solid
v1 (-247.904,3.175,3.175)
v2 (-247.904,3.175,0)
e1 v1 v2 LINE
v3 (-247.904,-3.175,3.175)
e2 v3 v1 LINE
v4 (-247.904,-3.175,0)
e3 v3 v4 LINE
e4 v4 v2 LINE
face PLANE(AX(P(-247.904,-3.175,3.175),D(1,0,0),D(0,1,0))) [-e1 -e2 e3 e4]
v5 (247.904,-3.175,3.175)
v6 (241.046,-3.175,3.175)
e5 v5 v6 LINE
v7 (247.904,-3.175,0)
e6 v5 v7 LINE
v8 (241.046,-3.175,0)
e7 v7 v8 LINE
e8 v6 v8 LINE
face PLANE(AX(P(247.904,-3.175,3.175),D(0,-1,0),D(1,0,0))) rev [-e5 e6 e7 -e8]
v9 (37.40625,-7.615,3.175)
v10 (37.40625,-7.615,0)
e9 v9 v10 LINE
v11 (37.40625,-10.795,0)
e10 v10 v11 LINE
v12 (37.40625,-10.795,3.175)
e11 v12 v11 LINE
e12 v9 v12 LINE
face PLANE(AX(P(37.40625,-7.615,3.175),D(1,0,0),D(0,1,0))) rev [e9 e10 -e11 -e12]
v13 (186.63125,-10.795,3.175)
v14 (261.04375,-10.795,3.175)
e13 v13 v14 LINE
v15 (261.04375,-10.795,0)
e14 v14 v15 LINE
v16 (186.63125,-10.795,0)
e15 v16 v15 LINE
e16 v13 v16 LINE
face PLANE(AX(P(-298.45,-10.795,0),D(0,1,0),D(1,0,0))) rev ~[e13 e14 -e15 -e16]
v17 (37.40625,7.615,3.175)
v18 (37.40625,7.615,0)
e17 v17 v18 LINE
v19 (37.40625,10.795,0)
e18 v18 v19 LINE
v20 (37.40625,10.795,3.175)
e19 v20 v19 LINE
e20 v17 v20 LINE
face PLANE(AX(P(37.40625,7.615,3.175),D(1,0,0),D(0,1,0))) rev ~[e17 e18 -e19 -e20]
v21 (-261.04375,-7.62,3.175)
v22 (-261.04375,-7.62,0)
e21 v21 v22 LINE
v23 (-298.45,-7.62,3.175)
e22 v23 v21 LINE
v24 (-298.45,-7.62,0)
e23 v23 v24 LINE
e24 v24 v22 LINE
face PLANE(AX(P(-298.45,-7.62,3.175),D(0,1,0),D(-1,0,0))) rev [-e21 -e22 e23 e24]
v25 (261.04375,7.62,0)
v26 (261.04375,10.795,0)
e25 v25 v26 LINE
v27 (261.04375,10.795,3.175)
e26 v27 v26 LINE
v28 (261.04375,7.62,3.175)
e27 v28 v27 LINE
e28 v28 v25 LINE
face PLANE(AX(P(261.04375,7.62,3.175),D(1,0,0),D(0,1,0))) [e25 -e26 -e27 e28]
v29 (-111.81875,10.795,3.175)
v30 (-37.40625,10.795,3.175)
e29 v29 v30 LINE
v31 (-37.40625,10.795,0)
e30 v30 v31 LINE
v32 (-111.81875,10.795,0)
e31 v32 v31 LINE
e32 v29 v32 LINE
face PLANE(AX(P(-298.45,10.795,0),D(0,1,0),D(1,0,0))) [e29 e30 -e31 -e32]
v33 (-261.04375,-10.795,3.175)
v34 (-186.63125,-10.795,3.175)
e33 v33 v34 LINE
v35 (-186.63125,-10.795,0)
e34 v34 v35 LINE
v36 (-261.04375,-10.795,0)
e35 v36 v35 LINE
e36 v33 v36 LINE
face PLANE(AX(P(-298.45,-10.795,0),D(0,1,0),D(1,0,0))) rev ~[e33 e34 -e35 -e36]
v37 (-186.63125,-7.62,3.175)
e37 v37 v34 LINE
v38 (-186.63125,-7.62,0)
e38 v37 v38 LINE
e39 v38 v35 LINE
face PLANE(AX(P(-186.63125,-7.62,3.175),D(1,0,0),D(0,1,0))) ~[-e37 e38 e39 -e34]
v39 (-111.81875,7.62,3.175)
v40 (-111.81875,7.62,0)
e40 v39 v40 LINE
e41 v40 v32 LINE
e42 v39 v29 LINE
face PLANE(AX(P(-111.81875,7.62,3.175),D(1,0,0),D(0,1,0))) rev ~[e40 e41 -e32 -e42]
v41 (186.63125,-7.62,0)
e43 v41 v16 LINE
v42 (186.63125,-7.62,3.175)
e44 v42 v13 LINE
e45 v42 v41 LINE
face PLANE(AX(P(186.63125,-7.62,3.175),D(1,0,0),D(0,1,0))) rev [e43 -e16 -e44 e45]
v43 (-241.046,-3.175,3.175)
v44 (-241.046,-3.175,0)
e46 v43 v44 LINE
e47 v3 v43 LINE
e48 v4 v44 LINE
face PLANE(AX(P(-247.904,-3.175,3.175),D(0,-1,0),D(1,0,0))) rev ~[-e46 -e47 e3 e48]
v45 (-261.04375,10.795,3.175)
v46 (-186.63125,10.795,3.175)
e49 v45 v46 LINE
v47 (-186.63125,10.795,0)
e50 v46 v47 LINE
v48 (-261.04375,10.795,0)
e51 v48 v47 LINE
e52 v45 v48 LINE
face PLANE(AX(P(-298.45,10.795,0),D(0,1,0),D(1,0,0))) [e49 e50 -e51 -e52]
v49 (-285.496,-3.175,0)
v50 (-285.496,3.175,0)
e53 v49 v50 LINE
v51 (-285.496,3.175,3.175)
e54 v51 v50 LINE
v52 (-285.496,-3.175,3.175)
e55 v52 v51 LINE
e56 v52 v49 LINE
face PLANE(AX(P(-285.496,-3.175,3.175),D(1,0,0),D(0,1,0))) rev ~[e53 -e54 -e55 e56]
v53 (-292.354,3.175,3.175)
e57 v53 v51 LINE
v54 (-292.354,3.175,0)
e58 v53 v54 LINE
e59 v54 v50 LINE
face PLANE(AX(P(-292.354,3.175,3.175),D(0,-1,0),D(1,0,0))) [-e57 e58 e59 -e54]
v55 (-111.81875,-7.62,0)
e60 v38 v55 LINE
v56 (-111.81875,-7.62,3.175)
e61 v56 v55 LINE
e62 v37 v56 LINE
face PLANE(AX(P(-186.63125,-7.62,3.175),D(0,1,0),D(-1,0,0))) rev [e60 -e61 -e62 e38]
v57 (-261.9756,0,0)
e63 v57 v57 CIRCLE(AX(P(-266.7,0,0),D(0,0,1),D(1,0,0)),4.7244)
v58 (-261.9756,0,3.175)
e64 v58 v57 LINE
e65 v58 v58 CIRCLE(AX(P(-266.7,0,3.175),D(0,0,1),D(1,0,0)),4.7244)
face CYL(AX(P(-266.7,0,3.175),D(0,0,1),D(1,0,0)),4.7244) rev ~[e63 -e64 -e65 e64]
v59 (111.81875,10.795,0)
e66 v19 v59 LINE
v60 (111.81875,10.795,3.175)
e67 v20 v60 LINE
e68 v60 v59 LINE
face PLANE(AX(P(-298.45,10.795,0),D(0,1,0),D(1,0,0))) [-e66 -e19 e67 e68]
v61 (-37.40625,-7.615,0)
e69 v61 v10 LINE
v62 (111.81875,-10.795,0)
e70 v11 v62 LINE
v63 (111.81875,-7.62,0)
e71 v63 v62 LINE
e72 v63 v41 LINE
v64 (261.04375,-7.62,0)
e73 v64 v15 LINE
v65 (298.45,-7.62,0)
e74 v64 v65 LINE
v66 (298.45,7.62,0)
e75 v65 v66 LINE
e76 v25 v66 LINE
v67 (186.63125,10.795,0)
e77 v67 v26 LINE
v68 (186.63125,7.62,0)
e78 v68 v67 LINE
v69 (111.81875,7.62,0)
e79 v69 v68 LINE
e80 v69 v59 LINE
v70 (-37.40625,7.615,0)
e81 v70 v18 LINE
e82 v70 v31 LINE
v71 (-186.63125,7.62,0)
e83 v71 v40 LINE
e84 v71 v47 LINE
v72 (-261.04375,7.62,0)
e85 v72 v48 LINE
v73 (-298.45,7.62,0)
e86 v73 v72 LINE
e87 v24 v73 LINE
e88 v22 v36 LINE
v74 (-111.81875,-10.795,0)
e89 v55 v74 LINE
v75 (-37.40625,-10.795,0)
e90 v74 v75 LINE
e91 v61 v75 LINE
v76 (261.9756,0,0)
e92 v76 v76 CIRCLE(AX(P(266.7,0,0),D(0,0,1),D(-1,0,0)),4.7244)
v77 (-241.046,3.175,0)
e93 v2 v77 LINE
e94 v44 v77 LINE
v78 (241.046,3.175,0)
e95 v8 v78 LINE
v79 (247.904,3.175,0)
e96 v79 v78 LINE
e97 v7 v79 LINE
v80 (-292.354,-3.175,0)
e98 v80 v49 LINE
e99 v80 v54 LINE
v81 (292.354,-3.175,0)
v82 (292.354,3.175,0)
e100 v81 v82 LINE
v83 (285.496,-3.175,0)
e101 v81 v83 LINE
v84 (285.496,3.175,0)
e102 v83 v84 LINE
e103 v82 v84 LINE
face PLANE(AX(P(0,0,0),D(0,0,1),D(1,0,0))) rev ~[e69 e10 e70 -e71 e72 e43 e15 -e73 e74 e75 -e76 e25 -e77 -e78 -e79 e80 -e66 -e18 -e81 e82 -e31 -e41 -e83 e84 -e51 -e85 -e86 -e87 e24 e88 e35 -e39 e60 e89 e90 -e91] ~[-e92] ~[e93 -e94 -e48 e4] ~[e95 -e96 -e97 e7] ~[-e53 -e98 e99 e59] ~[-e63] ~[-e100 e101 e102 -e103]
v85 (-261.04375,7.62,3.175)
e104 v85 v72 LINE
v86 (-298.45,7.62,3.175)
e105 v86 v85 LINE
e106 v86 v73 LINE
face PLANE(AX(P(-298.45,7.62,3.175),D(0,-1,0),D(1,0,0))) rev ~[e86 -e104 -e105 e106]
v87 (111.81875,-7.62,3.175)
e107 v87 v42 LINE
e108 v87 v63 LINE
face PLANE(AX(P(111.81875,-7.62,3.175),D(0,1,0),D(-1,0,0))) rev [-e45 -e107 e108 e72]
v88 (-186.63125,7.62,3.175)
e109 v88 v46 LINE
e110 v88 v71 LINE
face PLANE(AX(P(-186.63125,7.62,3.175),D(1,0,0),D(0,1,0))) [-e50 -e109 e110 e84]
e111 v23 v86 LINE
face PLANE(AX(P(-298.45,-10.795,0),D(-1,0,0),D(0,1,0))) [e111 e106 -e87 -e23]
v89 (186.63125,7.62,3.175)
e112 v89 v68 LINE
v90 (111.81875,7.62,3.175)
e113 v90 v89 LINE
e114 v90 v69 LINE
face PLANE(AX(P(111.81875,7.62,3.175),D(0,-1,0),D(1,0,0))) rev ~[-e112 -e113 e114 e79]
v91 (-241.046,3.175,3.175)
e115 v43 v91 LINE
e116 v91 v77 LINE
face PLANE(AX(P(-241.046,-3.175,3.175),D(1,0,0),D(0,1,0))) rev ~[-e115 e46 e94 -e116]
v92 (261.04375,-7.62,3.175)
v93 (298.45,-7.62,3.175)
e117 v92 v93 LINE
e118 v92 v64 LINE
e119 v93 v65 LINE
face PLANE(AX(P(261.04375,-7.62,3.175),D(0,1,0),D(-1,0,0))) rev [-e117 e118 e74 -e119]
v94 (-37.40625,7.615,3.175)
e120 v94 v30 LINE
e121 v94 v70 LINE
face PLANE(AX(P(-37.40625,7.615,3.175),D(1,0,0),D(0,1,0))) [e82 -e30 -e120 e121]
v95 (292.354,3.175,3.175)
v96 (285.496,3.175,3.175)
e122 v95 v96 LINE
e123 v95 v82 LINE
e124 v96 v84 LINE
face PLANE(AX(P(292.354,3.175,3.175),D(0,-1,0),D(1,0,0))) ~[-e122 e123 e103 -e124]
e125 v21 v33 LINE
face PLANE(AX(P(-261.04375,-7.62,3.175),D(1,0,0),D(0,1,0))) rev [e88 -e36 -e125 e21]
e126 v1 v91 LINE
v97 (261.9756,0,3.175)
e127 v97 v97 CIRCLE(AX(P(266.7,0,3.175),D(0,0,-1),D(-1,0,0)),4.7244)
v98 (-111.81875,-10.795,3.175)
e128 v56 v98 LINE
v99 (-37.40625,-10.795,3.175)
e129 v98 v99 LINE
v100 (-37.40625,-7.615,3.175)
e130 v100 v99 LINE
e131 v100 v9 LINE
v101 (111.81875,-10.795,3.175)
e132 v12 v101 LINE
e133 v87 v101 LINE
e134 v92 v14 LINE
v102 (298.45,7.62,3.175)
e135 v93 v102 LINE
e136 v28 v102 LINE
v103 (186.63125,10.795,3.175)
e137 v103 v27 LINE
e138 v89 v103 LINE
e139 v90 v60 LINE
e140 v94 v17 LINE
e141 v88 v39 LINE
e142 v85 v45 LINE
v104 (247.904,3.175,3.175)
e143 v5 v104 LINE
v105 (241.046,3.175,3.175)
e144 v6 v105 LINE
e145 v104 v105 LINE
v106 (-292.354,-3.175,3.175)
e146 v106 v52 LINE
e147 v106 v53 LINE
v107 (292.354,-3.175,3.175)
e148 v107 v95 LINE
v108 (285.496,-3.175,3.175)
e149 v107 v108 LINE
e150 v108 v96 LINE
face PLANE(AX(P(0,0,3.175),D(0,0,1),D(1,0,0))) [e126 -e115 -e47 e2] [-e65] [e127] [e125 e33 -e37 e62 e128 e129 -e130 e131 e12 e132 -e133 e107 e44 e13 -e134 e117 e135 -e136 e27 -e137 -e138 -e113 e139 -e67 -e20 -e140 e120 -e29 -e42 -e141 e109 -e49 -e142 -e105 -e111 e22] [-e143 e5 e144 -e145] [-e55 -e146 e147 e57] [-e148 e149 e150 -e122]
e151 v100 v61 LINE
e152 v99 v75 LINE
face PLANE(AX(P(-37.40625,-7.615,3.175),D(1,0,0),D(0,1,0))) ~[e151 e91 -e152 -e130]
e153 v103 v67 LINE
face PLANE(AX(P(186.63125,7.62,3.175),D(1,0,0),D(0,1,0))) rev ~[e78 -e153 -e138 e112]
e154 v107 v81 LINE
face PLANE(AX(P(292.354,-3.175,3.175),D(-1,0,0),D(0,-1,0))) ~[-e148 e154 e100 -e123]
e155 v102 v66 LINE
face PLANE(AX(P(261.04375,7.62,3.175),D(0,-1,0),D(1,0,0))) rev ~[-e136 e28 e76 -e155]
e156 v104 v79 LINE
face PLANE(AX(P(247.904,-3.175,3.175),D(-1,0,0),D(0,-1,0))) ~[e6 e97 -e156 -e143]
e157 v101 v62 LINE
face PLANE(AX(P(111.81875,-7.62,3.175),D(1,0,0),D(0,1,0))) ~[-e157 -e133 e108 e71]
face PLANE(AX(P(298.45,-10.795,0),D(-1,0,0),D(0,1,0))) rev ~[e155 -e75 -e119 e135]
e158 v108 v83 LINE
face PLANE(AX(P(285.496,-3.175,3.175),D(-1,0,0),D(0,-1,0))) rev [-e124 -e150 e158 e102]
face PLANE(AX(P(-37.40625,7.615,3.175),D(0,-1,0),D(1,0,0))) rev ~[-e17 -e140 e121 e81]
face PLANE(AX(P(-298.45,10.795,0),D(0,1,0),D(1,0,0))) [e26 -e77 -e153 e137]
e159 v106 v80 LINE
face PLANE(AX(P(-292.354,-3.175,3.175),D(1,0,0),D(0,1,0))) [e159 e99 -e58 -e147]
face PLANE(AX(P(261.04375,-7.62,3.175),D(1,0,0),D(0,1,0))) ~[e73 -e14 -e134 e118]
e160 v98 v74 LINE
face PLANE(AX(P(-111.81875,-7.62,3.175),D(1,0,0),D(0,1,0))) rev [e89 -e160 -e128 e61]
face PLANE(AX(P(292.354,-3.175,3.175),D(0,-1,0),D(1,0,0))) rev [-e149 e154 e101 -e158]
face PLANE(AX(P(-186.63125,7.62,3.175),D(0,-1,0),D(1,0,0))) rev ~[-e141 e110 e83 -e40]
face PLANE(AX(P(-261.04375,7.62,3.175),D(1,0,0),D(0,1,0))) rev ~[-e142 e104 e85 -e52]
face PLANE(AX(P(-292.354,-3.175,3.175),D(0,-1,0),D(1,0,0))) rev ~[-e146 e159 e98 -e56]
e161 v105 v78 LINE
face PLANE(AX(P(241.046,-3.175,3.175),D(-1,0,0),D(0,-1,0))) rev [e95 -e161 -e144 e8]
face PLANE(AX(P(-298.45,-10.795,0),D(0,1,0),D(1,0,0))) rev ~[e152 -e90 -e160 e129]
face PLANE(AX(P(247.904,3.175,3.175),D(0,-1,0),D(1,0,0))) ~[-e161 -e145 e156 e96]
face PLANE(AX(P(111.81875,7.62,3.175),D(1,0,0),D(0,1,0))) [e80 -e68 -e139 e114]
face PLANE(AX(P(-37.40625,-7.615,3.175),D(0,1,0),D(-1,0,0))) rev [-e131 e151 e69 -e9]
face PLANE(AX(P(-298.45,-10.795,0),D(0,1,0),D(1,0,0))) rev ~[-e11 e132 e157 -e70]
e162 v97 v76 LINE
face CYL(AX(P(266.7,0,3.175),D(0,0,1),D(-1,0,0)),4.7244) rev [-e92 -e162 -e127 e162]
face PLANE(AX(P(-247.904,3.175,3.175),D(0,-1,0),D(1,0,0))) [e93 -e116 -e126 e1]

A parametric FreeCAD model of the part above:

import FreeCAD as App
import Part
import Sketcher

V = App.Vector
Q = App.Units.Quantity

doc = App.newDocument("Part")
body = doc.addObject("PartDesign::Body", "Body")

sketch1 = doc.addObject("Sketcher::SketchObject", "Sketch")
body.addObject(sketch1)
sketch1.AttachmentSupport = (doc.XY_Plane, [""])
sketch1.MapMode = "FlatFace"
sketch1.addGeometry([
    Part.LineSegment(V(-298.45, 10.795, 0), V(-298.45, -10.795, 0)),
    Part.LineSegment(V(-298.45, -10.795, 0), V(298.45, -10.795, 0)),
    Part.LineSegment(V(298.45, -10.795, 0), V(298.45, 10.795, 0)),
    Part.LineSegment(V(298.45, 10.795, 0), V(-298.45, 10.795, 0)),
], False)
sketch1.addConstraint([
    Sketcher.Constraint("Coincident", 0, 2, 1, 1),
    Sketcher.Constraint("Coincident", 1, 2, 2, 1),
    Sketcher.Constraint("Coincident", 2, 2, 3, 1),
    Sketcher.Constraint("Coincident", 3, 2, 0, 1),
    Sketcher.Constraint("Vertical", 0),
    Sketcher.Constraint("Horizontal", 1),
    Sketcher.Constraint("Vertical", 2),
    Sketcher.Constraint("Horizontal", 3),
    Sketcher.Constraint("Symmetric", 0, 2, 2, 2, -1, 1),
    Sketcher.Constraint("DistanceX", 1, 1, 1, 2, Q("23.5 in")),
    Sketcher.Constraint("DistanceY", 0, 2, 0, 1, Q("0.85 in")),
])
pad1 = doc.addObject("PartDesign::Pad", "Pad")
body.addObject(pad1)
pad1.Profile = sketch1
pad1.Length = Q("0.125 in")

sketch2 = doc.addObject("Sketcher::SketchObject", "Sketch001")
body.addObject(sketch2)
sketch2.AttachmentSupport = (doc.XY_Plane, [""])
sketch2.MapMode = "FlatFace"
sketch2.AttachmentOffset = App.Placement(V(0, 0, 0.125 * 25.4), App.Rotation())
sketch2.addGeometry([
    Part.LineSegment(V(-37.40625, 10.795, 0), V(-37.40625, 7.615, 0)),
    Part.LineSegment(V(-37.40625, 7.615, 0), V(37.40625, 7.615, 0)),
    Part.LineSegment(V(37.40625, 7.615, 0), V(37.40625, 10.795, 0)),
    Part.LineSegment(V(37.40625, 10.795, 0), V(-37.40625, 10.795, 0)),
    Part.LineSegment(V(-186.63125, 10.795, 0), V(-186.63125, 7.62, 0)),
    Part.LineSegment(V(-186.63125, 7.62, 0), V(-111.81875, 7.62, 0)),
    Part.LineSegment(V(-111.81875, 7.62, 0), V(-111.81875, 10.795, 0)),
    Part.LineSegment(V(-111.81875, 10.795, 0), V(-186.63125, 10.795, 0)),
    Part.LineSegment(V(-298.45, 10.795, 0), V(-298.45, 7.62, 0)),
    Part.LineSegment(V(-298.45, 7.62, 0), V(-261.04375, 7.62, 0)),
    Part.LineSegment(V(-261.04375, 7.62, 0), V(-261.04375, 10.795, 0)),
    Part.LineSegment(V(-261.04375, 10.795, 0), V(-298.45, 10.795, 0)),
    Part.LineSegment(V(261.04375, 10.795, 0), V(261.04375, 7.62, 0)),
    Part.LineSegment(V(261.04375, 7.62, 0), V(298.45, 7.62, 0)),
    Part.LineSegment(V(298.45, 7.62, 0), V(298.45, 10.795, 0)),
    Part.LineSegment(V(298.45, 10.795, 0), V(261.04375, 10.795, 0)),
    Part.LineSegment(V(111.81875, 10.795, 0), V(111.81875, 7.62, 0)),
    Part.LineSegment(V(111.81875, 7.62, 0), V(186.63125, 7.62, 0)),
    Part.LineSegment(V(186.63125, 7.62, 0), V(186.63125, 10.795, 0)),
    Part.LineSegment(V(186.63125, 10.795, 0), V(111.81875, 10.795, 0)),
], False)
sketch2.addConstraint([
    Sketcher.Constraint("Coincident", 0, 2, 1, 1),
    Sketcher.Constraint("Coincident", 1, 2, 2, 1),
    Sketcher.Constraint("Coincident", 2, 2, 3, 1),
    Sketcher.Constraint("Coincident", 3, 2, 0, 1),
    Sketcher.Constraint("Coincident", 4, 2, 5, 1),
    Sketcher.Constraint("Coincident", 5, 2, 6, 1),
    Sketcher.Constraint("Coincident", 6, 2, 7, 1),
    Sketcher.Constraint("Coincident", 7, 2, 4, 1),
    Sketcher.Constraint("Coincident", 8, 2, 9, 1),
    Sketcher.Constraint("Coincident", 9, 2, 10, 1),
    Sketcher.Constraint("Coincident", 10, 2, 11, 1),
    Sketcher.Constraint("Coincident", 11, 2, 8, 1),
    Sketcher.Constraint("Coincident", 12, 2, 13, 1),
    Sketcher.Constraint("Coincident", 13, 2, 14, 1),
    Sketcher.Constraint("Coincident", 14, 2, 15, 1),
    Sketcher.Constraint("Coincident", 15, 2, 12, 1),
    Sketcher.Constraint("Coincident", 16, 2, 17, 1),
    Sketcher.Constraint("Coincident", 17, 2, 18, 1),
    Sketcher.Constraint("Coincident", 18, 2, 19, 1),
    Sketcher.Constraint("Coincident", 19, 2, 16, 1),
    Sketcher.Constraint("Vertical", 0),
    Sketcher.Constraint("Horizontal", 1),
    Sketcher.Constraint("Vertical", 2),
    Sketcher.Constraint("Horizontal", 3),
    Sketcher.Constraint("Vertical", 4),
    Sketcher.Constraint("Horizontal", 5),
    Sketcher.Constraint("Vertical", 6),
    Sketcher.Constraint("Horizontal", 7),
    Sketcher.Constraint("Vertical", 8),
    Sketcher.Constraint("Horizontal", 9),
    Sketcher.Constraint("Vertical", 10),
    Sketcher.Constraint("Horizontal", 11),
    Sketcher.Constraint("Vertical", 12),
    Sketcher.Constraint("Horizontal", 13),
    Sketcher.Constraint("Vertical", 14),
    Sketcher.Constraint("Horizontal", 15),
    Sketcher.Constraint("Vertical", 16),
    Sketcher.Constraint("Horizontal", 17),
    Sketcher.Constraint("Vertical", 18),
    Sketcher.Constraint("Horizontal", 19),
    Sketcher.Constraint("Symmetric", 9, 2, 12, 2, -2),
    Sketcher.Constraint("Symmetric", 11, 2, 14, 2, -2),
    Sketcher.Constraint("Symmetric", 5, 2, 16, 2, -2),
    Sketcher.Constraint("Symmetric", 7, 2, 18, 2, -2),
    Sketcher.Constraint("Horizontal", 3, 2, 6, 2),
    Sketcher.Constraint("Horizontal", 5, 2, 8, 2),
    Sketcher.Constraint("Horizontal", 7, 2, 10, 2),
    Sketcher.Constraint("Equal", 3, 5),
    Sketcher.Constraint("DistanceY", -1, 1, 4, 2, Q("0.3 in")),
    Sketcher.Constraint("DistanceY", 4, 2, 4, 1, Q("0.125 in")),
    Sketcher.Constraint("DistanceX", 8, 2, -1, 1, Q("11.75 in")),
    Sketcher.Constraint("DistanceX", 0, 2, 12, 2, Q("11.75 in")),
    Sketcher.Constraint("DistanceX", 4, 2, 0, 2, Q("5.875 in")),
    Sketcher.Constraint("DistanceX", 9, 2, 5, 2, Q("5.875 in")),
    Sketcher.Constraint("DistanceX", 1, 1, 1, 2, 74.8125),
    Sketcher.Constraint("DistanceY", 0, 2, 0, 1, 3.18),
])
pocket1 = doc.addObject("PartDesign::Pocket", "Pocket")
body.addObject(pocket1)
pocket1.Profile = sketch2
pocket1.Type = "ThroughAll"
doc.recompute()

mirrored = doc.addObject("PartDesign::Mirrored", "Mirrored")
body.addObject(mirrored)
mirrored.Originals = [pocket1]
mirrored.MirrorPlane = (doc.XZ_Plane, [""])
body.Tip = mirrored

sketch3 = doc.addObject("Sketcher::SketchObject", "Sketch002")
body.addObject(sketch3)
sketch3.AttachmentSupport = (doc.XY_Plane, [""])
sketch3.MapMode = "FlatFace"
sketch3.AttachmentOffset = App.Placement(V(0, 0, 0.125 * 25.4), App.Rotation())
sketch3.addGeometry([
    Part.Circle(V(-266.7, 0, 0), V(0, 0, 1), 4.7244),
    Part.LineSegment(V(-247.904, 3.175, 0), V(-247.904, -3.175, 0)),
    Part.LineSegment(V(-247.904, -3.175, 0), V(-241.046, -3.175, 0)),
    Part.LineSegment(V(-241.046, -3.175, 0), V(-241.046, 3.175, 0)),
    Part.LineSegment(V(-241.046, 3.175, 0), V(-247.904, 3.175, 0)),
    Part.LineSegment(V(-292.354, 3.175, 0), V(-292.354, -3.175, 0)),
    Part.LineSegment(V(-292.354, -3.175, 0), V(-285.496, -3.175, 0)),
    Part.LineSegment(V(-285.496, -3.175, 0), V(-285.496, 3.175, 0)),
    Part.LineSegment(V(-285.496, 3.175, 0), V(-292.354, 3.175, 0)),
], False)
sketch3.addConstraint([
    Sketcher.Constraint("Coincident", 1, 2, 2, 1),
    Sketcher.Constraint("Coincident", 2, 2, 3, 1),
    Sketcher.Constraint("Coincident", 3, 2, 4, 1),
    Sketcher.Constraint("Coincident", 4, 2, 1, 1),
    Sketcher.Constraint("Coincident", 5, 2, 6, 1),
    Sketcher.Constraint("Coincident", 6, 2, 7, 1),
    Sketcher.Constraint("Coincident", 7, 2, 8, 1),
    Sketcher.Constraint("Coincident", 8, 2, 5, 1),
    Sketcher.Constraint("Vertical", 1),
    Sketcher.Constraint("Horizontal", 2),
    Sketcher.Constraint("Vertical", 3),
    Sketcher.Constraint("Horizontal", 4),
    Sketcher.Constraint("Vertical", 5),
    Sketcher.Constraint("Horizontal", 6),
    Sketcher.Constraint("Vertical", 7),
    Sketcher.Constraint("Horizontal", 8),
    Sketcher.Constraint("PointOnObject", 0, 3, -1),
    Sketcher.Constraint("Horizontal", 2, 2, 5, 2),
    Sketcher.Constraint("Horizontal", 4, 2, 7, 2),
    Sketcher.Constraint("Equal", 4, 6),
    Sketcher.Constraint("Diameter", 0, Q("0.372 in")),
    Sketcher.Constraint("DistanceX", 2, 1, 2, 2, Q("0.27 in")),
    Sketcher.Constraint("DistanceY", 1, 2, 1, 1, Q("0.25 in")),
    Sketcher.Constraint("DistanceX", 0, 3, -1, 1, Q("10.5 in")),
    Sketcher.Constraint("DistanceX", 1, 2, -1, 1, Q("9.76 in")),
    Sketcher.Constraint("DistanceX", 5, 2, -1, 1, Q("11.51 in")),
    Sketcher.Constraint("DistanceY", 1, 2, -1, 1, Q("0.125 in")),
])
pocket2 = doc.addObject("PartDesign::Pocket", "Pocket001")
body.addObject(pocket2)
pocket2.Profile = sketch3
pocket2.Type = "ThroughAll"
doc.recompute()

mirrored2 = doc.addObject("PartDesign::Mirrored", "Mirrored001")
body.addObject(mirrored2)
mirrored2.Originals = [pocket2]
mirrored2.MirrorPlane = (doc.YZ_Plane, [""])
body.Tip = mirrored2

doc.recompute()
